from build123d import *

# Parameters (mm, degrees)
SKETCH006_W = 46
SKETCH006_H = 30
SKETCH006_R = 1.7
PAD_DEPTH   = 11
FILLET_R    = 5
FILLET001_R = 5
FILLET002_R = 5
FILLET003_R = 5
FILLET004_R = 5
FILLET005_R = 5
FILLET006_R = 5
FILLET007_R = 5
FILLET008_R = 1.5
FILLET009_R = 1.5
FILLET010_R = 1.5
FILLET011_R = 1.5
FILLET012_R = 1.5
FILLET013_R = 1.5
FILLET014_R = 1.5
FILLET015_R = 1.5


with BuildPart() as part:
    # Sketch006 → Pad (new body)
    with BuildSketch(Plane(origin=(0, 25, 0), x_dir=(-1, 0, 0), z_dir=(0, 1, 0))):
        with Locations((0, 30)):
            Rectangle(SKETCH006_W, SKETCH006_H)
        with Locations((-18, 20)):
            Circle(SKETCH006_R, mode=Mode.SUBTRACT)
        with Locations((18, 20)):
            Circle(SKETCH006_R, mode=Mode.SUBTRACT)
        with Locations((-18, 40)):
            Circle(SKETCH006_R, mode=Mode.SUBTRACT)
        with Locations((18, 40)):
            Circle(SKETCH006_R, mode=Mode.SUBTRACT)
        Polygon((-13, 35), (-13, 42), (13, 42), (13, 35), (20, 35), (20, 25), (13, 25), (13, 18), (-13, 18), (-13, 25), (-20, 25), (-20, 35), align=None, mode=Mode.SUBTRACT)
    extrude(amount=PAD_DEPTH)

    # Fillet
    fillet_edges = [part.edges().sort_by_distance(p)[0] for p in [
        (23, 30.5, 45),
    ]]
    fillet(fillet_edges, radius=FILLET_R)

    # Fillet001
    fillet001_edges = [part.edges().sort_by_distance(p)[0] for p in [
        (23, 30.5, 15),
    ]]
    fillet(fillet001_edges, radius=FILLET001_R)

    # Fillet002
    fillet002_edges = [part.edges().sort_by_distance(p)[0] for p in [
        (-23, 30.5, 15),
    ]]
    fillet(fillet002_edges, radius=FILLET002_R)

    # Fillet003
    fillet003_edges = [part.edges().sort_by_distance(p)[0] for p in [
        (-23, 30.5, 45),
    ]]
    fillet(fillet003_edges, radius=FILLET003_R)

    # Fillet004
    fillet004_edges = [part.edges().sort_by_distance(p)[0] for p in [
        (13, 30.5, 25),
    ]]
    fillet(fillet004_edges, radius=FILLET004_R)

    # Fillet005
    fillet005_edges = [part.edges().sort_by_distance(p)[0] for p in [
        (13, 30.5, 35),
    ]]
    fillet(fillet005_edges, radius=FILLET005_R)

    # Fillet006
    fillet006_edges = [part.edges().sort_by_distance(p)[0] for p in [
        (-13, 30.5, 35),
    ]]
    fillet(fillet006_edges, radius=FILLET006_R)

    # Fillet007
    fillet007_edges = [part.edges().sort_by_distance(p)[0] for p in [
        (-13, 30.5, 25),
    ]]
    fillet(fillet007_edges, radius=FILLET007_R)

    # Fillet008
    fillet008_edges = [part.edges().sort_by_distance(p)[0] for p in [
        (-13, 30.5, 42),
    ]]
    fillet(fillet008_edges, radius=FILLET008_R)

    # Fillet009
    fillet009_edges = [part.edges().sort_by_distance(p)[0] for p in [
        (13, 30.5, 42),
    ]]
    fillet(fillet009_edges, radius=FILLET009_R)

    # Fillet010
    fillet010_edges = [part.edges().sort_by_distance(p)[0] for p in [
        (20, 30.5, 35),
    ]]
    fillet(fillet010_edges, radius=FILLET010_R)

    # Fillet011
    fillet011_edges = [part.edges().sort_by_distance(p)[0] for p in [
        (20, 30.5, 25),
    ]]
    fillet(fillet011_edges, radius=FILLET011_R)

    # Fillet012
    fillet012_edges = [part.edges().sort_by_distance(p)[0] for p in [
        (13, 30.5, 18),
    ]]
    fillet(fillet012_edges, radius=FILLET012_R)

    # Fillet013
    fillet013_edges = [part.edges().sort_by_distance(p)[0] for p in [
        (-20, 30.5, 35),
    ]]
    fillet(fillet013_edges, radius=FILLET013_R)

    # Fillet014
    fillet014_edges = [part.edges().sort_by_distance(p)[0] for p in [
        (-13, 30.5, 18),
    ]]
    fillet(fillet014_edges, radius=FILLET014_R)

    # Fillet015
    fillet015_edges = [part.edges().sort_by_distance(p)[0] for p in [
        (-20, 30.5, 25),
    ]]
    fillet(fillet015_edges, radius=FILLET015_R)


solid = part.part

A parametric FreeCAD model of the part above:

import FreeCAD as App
import Part
import Sketcher

V = App.Vector
Q = App.Units.Quantity


def edges_at(feature, points):
    """Names of the edges that pass closest to the given points."""
    edges = feature.Shape.Edges
    near = lambda p: min(range(len(edges)), key=lambda i: edges[i].distToShape(Part.Vertex(*p))[0])
    return sorted({f"Edge{near(p) + 1}" for p in points})


def add_polygon(sketch, points):
    """Adds a closed chain of lines whose ends are joined by coincident constraints."""
    first, n = sketch.GeometryCount, len(points)
    for a, b in zip(points, points[1:] + points[:1]):
        sketch.addGeometry(Part.LineSegment(App.Vector(*a, 0), App.Vector(*b, 0)), False)
    for i in range(n):
        sketch.addConstraint(Sketcher.Constraint("Coincident", first + i, 2, first + (i + 1) % n, 1))

doc = App.newDocument("Part")
body = doc.addObject("PartDesign::Body", "Body")

# Sketch on XZ plane
sketch1 = body.newObject("Sketcher::SketchObject", "Sketch")
sketch1.AttachmentSupport = (doc.getObject("XZ_Plane"), [""])
sketch1.MapMode = "FlatFace"
sketch1.AttachmentOffset = App.Placement(V(0, 0, -25), App.Rotation())
add_polygon(sketch1, [(23, 45), (23, 15), (-23, 15), (-23, 45)])  # lines 0-3
sketch1.addGeometry(Part.Circle(V(18, 20, 0), V(0, 0, 1), 1.7), False)  # 4
sketch1.addGeometry(Part.Circle(V(-18, 20, 0), V(0, 0, 1), 1.7), False)  # 5
sketch1.addGeometry(Part.Circle(V(18, 40, 0), V(0, 0, 1), 1.7), False)  # 6
add_polygon(sketch1, [(20, 35), (13, 35), (13, 42), (-13, 42), (-13, 35), (-20, 35), (-20, 25), (-13, 25), (-13, 18), (13, 18), (13, 25), (20, 25)])  # lines 7-18
sketch1.addGeometry(Part.Circle(V(-18, 40, 0), V(0, 0, 1), 1.7), False)  # 19
sketch1.addConstraint(Sketcher.Constraint("Vertical", 0))
sketch1.addConstraint(Sketcher.Constraint("Horizontal", 1))
sketch1.addConstraint(Sketcher.Constraint("Vertical", 2))
sketch1.addConstraint(Sketcher.Constraint("Horizontal", 3))
sketch1.addConstraint(Sketcher.Constraint("Horizontal", 7))
sketch1.addConstraint(Sketcher.Constraint("Vertical", 8))
sketch1.addConstraint(Sketcher.Constraint("Horizontal", 9))
sketch1.addConstraint(Sketcher.Constraint("Vertical", 10))
sketch1.addConstraint(Sketcher.Constraint("Horizontal", 11))
sketch1.addConstraint(Sketcher.Constraint("Vertical", 12))
sketch1.addConstraint(Sketcher.Constraint("Horizontal", 13))
sketch1.addConstraint(Sketcher.Constraint("Vertical", 14))
sketch1.addConstraint(Sketcher.Constraint("Horizontal", 15))
sketch1.addConstraint(Sketcher.Constraint("Vertical", 16))
sketch1.addConstraint(Sketcher.Constraint("Horizontal", 17))
sketch1.addConstraint(Sketcher.Constraint("Vertical", 18))
sketch1.addConstraint(Sketcher.Constraint("Equal", 4, 5))
sketch1.addConstraint(Sketcher.Constraint("Equal", 5, 6))
sketch1.addConstraint(Sketcher.Constraint("Equal", 6, 19))
sketch1.addConstraint(Sketcher.Constraint("Symmetric", 4, 3, 5, 3, -2))
sketch1.addConstraint(Sketcher.Constraint("Symmetric", 6, 3, 19, 3, -2))
sketch1.addConstraint(Sketcher.Constraint("Symmetric", 7, 2, 10, 2, -2))
sketch1.addConstraint(Sketcher.Constraint("Symmetric", 13, 2, 16, 2, -2))
sketch1.addConstraint(Sketcher.Constraint("Vertical", 4, 3, 6, 3))
sketch1.addConstraint(Sketcher.Constraint("Vertical", 10, 2, 13, 2))
sketch1.addConstraint(Sketcher.Constraint("Equal", 7, 11))
sketch1.addConstraint(Sketcher.Constraint("Equal", 17, 8))
sketch1.addConstraint(Sketcher.Constraint("Equal", 10, 14))
sketch1.addConstraint(Sketcher.Constraint("Diameter", 4, Q("3.4 mm")))
sketch1.addConstraint(Sketcher.Constraint("DistanceX", 1, 2, 1, 1, Q("46 mm")))
sketch1.addConstraint(Sketcher.Constraint("DistanceX", 7, 2, 7, 1, Q("7 mm")))
sketch1.addConstraint(Sketcher.Constraint("DistanceX", 9, 2, 9, 1, Q("26 mm")))
sketch1.addConstraint(Sketcher.Constraint("DistanceY", 0, 2, 0, 1, Q("30 mm")))
sketch1.addConstraint(Sketcher.Constraint("DistanceY", 12, 2, 12, 1, Q("10 mm")))
sketch1.addConstraint(Sketcher.Constraint("DistanceX", -1, 1, 4, 3, Q("18 mm")))
sketch1.addConstraint(Sketcher.Constraint("DistanceY", -1, 1, 4, 3, Q("20 mm")))
sketch1.addConstraint(Sketcher.Constraint("DistanceY", -1, 1, 6, 3, Q("40 mm")))
sketch1.addConstraint(Sketcher.Constraint("DistanceX", -1, 1, 0, 2, Q("23 mm")))
sketch1.addConstraint(Sketcher.Constraint("DistanceY", -1, 1, 0, 2, Q("15 mm")))
sketch1.addConstraint(Sketcher.Constraint("DistanceY", -1, 1, 7, 2, Q("35 mm")))
pad1 = body.newObject("PartDesign::Pad", "Pad")
pad1.Profile = sketch1
pad1.Length = 11
pad1.Reversed = True
doc.recompute()

fillet = body.newObject("PartDesign::Fillet", "Fillet")
fillet.Base = (pad1, edges_at(pad1, [(23, 30.5, 45)]))
fillet.Radius = 5
doc.recompute()

fillet2 = body.newObject("PartDesign::Fillet", "Fillet001")
fillet2.Base = (fillet, edges_at(fillet, [(23, 30.5, 15)]))
fillet2.Radius = 5
doc.recompute()

fillet3 = body.newObject("PartDesign::Fillet", "Fillet002")
fillet3.Base = (fillet2, edges_at(fillet2, [(-23, 30.5, 15)]))
fillet3.Radius = 5
doc.recompute()

fillet4 = body.newObject("PartDesign::Fillet", "Fillet003")
fillet4.Base = (fillet3, edges_at(fillet3, [(-23, 30.5, 45)]))
fillet4.Radius = 5
doc.recompute()

fillet5 = body.newObject("PartDesign::Fillet", "Fillet004")
fillet5.Base = (fillet4, edges_at(fillet4, [(13, 30.5, 25)]))
fillet5.Radius = 5
doc.recompute()

fillet6 = body.newObject("PartDesign::Fillet", "Fillet005")
fillet6.Base = (fillet5, edges_at(fillet5, [(13, 30.5, 35)]))
fillet6.Radius = 5
doc.recompute()

fillet7 = body.newObject("PartDesign::Fillet", "Fillet006")
fillet7.Base = (fillet6, edges_at(fillet6, [(-13, 30.5, 35)]))
fillet7.Radius = 5
doc.recompute()

fillet8 = body.newObject("PartDesign::Fillet", "Fillet007")
fillet8.Base = (fillet7, edges_at(fillet7, [(-13, 30.5, 25)]))
fillet8.Radius = 5
doc.recompute()

fillet9 = body.newObject("PartDesign::Fillet", "Fillet008")
fillet9.Base = (fillet8, edges_at(fillet8, [(-13, 30.5, 42)]))
fillet9.Radius = 1.5
doc.recompute()

fillet10 = body.newObject("PartDesign::Fillet", "Fillet009")
fillet10.Base = (fillet9, edges_at(fillet9, [(13, 30.5, 42)]))
fillet10.Radius = 1.5
doc.recompute()

fillet11 = body.newObject("PartDesign::Fillet", "Fillet010")
fillet11.Base = (fillet10, edges_at(fillet10, [(20, 30.5, 35)]))
fillet11.Radius = 1.5
doc.recompute()

fillet12 = body.newObject("PartDesign::Fillet", "Fillet011")
fillet12.Base = (fillet11, edges_at(fillet11, [(20, 30.5, 25)]))
fillet12.Radius = 1.5
doc.recompute()

fillet13 = body.newObject("PartDesign::Fillet", "Fillet012")
fillet13.Base = (fillet12, edges_at(fillet12, [(13, 30.5, 18)]))
fillet13.Radius = 1.5
doc.recompute()

fillet14 = body.newObject("PartDesign::Fillet", "Fillet013")
fillet14.Base = (fillet13, edges_at(fillet13, [(-20, 30.5, 35)]))
fillet14.Radius = 1.5
doc.recompute()

fillet15 = body.newObject("PartDesign::Fillet", "Fillet014")
fillet15.Base = (fillet14, edges_at(fillet14, [(-13, 30.5, 18)]))
fillet15.Radius = 1.5
doc.recompute()

fillet16 = body.newObject("PartDesign::Fillet", "Fillet015")
fillet16.Base = (fillet15, edges_at(fillet15, [(-20, 30.5, 25)]))
fillet16.Radius = 1.5

doc.recompute()
